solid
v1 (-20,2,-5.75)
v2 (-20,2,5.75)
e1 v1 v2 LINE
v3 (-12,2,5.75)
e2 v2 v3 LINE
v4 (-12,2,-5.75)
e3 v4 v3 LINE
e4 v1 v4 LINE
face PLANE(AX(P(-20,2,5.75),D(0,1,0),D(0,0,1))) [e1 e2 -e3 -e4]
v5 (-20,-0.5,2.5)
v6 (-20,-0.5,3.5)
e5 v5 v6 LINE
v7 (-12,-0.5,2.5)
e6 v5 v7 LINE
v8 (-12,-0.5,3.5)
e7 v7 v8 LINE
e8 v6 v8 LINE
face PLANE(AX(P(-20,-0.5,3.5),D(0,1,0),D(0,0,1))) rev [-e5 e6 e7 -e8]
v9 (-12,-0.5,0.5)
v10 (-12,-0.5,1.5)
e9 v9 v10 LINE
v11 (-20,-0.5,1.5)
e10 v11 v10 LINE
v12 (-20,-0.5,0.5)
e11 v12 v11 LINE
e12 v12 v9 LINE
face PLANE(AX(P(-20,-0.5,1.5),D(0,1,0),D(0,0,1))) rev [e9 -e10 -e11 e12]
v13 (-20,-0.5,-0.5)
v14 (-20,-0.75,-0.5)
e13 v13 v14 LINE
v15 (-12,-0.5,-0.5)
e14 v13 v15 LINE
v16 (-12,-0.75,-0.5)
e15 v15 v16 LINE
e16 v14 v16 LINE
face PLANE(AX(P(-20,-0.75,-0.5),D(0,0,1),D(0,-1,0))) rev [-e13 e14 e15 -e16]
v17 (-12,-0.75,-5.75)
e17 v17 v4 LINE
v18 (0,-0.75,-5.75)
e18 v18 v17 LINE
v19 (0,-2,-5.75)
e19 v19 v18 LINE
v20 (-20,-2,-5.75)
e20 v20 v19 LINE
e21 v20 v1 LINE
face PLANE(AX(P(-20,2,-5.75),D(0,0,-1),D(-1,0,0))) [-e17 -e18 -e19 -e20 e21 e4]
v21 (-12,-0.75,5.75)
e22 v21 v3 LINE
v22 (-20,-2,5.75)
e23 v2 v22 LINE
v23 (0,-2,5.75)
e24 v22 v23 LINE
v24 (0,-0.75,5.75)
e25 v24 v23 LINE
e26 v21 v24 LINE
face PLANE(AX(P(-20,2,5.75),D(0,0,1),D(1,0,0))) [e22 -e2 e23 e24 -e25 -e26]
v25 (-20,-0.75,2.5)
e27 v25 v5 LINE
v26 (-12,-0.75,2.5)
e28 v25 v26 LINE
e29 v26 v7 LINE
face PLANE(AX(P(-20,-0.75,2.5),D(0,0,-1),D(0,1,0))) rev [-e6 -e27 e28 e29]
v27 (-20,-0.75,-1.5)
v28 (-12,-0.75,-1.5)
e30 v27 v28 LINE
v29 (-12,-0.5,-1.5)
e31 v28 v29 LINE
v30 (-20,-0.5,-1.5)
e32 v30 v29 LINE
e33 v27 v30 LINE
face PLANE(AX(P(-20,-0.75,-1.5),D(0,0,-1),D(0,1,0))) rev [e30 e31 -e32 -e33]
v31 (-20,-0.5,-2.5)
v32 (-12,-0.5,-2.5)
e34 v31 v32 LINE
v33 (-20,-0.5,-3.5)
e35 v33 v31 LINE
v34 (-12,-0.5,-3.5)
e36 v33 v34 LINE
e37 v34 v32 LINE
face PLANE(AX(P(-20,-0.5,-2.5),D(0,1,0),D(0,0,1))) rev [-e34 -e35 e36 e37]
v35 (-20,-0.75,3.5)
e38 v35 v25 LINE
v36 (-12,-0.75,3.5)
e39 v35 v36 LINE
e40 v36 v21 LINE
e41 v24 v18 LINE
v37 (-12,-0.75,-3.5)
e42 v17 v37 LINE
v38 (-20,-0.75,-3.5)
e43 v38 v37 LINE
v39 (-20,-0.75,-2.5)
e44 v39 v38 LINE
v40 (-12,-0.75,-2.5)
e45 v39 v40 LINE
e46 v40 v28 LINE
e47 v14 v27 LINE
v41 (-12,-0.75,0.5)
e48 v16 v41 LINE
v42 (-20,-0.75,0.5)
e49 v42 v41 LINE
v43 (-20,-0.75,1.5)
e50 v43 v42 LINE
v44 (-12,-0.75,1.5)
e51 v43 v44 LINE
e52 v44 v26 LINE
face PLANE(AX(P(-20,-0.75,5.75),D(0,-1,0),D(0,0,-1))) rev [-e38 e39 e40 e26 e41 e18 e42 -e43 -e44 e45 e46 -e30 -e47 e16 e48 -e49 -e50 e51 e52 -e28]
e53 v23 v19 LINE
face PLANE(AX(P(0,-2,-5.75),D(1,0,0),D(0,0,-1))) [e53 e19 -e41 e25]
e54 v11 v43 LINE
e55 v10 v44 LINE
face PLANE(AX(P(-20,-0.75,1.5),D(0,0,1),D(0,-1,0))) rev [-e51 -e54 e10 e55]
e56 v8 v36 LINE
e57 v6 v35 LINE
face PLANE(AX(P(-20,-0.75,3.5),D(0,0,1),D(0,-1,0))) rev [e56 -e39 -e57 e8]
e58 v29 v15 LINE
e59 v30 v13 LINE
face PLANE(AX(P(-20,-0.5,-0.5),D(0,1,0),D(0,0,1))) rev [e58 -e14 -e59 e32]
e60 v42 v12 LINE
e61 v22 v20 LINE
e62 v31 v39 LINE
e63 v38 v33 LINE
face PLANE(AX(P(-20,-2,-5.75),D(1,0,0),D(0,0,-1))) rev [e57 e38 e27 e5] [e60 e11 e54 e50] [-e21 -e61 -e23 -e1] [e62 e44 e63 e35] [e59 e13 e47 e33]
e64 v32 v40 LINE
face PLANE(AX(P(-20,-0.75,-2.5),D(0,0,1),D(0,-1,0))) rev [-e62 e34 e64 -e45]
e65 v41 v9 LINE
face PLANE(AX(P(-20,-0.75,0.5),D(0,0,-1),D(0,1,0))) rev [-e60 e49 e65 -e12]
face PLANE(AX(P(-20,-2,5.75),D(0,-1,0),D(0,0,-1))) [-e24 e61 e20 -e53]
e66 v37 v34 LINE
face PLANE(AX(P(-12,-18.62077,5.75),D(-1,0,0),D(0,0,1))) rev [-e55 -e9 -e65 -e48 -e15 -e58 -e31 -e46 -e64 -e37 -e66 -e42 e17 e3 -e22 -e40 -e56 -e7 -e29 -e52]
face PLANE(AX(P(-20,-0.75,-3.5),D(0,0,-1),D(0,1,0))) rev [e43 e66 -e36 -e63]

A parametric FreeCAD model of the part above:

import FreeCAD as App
import Part
import Sketcher
from FreeCAD import Vector
Q = App.Units.Quantity


def add_polygon(sketch, points):
    """Adds a closed chain of lines whose ends are joined by coincident constraints."""
    first, n = sketch.GeometryCount, len(points)
    for a, b in zip(points, points[1:] + points[:1]):
        sketch.addGeometry(Part.LineSegment(App.Vector(*a, 0), App.Vector(*b, 0)), False)
    for i in range(n):
        sketch.addConstraint(Sketcher.Constraint("Coincident", first + i, 2, first + (i + 1) % n, 1))

doc = App.newDocument("Part")
params = doc.addObject("Spreadsheet::Sheet", "Params")
for row, (alias, value) in enumerate([
    ("sketch1_width", "4 mm"),
    ("sketch1_height", "11.5 mm"),
    ("pad1_length", "20 mm"),
    ("sketch2_width", "12 mm"),
    ("sketch2_height", "11.5 mm"),
    ("pocket1_length", "2.75 mm"),
    ("sketch3_height", "1 mm"),
    ("sketch3_width", "0.25 mm"),
    ("linearpattern_pitch", "2 mm"),
], start=1):
    params.set(f"A{row}", alias)
    params.set(f"B{row}", "=" + value)
    params.setAlias(f"B{row}", alias)

body = doc.addObject("PartDesign::Body", "Body")

sketch1 = body.newObject("Sketcher::SketchObject", "Sketch")
sketch1.AttachmentSupport = (doc.getObject("YZ_Plane"), [""])
sketch1.MapMode = "FlatFace"
add_polygon(sketch1, [(2, 5.8), (-2, 5.8), (-2, -5.8), (2, -5.8)])
sketch1.addConstraint([
    Sketcher.Constraint("Horizontal", 0),
    Sketcher.Constraint("Vertical", 1),
    Sketcher.Constraint("Horizontal", 2),
    Sketcher.Constraint("Vertical", 3),
    Sketcher.Constraint("Symmetric", 0, 2, 2, 2, -1, 1),
    Sketcher.Constraint("DistanceX", 0, 2, 0, 1, Q("4 mm")),
    Sketcher.Constraint("DistanceY", 1, 2, 1, 1, Q("11.5 mm")),
])
sketch1.setExpression("Constraints[9]", "Params.sketch1_width")
sketch1.setExpression("Constraints[10]", "Params.sketch1_height")
pad1 = body.newObject("PartDesign::Pad", "Pad")
pad1.Profile = sketch1
pad1.setExpression("Length", "Params.pad1_length")
pad1.Reversed = True

sketch2 = body.newObject("Sketcher::SketchObject", "Sketch001")
sketch2.AttachmentSupport = (doc.getObject("XZ_Plane"), [""])
sketch2.MapMode = "FlatFace"
sketch2.AttachmentOffset = App.Placement(Vector(0, 0, -2), App.Rotation())
add_polygon(sketch2, [(-12, -6), (-12, 6), (0, 6), (0, -6)])
sketch2.addConstraint([
    Sketcher.Constraint("Vertical", 0),
    Sketcher.Constraint("Horizontal", 1),
    Sketcher.Constraint("Vertical", 2),
    Sketcher.Constraint("Horizontal", 3),
    Sketcher.Constraint("Symmetric", 1, 2, 2, 2, -1, 1),
    Sketcher.Constraint("DistanceX", 1, 1, 1, 2, Q("12 mm")),
    Sketcher.Constraint("DistanceY", 0, 1, 0, 2, Q("11.5 mm")),
])
sketch2.setExpression("Constraints[9]", "Params.sketch2_width")
sketch2.setExpression("Constraints[10]", "Params.sketch2_height")
pocket1 = body.newObject("PartDesign::Pocket", "Pocket")
pocket1.Profile = sketch2
pocket1.setExpression("Length", "Params.pocket1_length")
pocket1.Reversed = True

sketch3 = body.newObject("Sketcher::SketchObject", "Sketch002")
sketch3.AttachmentSupport = (doc.getObject("YZ_Plane"), [""])
sketch3.MapMode = "FlatFace"
sketch3.AttachmentOffset = App.Placement(Vector(0, 0, -12), App.Rotation())
add_polygon(sketch3, [(-0.5, 3.5), (-0.75, 3.5), (-0.75, 2.5), (-0.5, 2.5)])
sketch3.addConstraint([
    Sketcher.Constraint("Horizontal", 0),
    Sketcher.Constraint("Vertical", 1),
    Sketcher.Constraint("Horizontal", 2),
    Sketcher.Constraint("Vertical", 3),
    Sketcher.Constraint("DistanceY", 1, 2, 1, 1, Q("1 mm")),
    Sketcher.Constraint("DistanceX", 0, 2, 0, 1, Q("0.25 mm")),
    Sketcher.Constraint("DistanceY", -1, 1, 0, 2, Q("3.5 mm")),
    Sketcher.Constraint("DistanceX", 2, 2, -1, 1, Q("0.5 mm")),
])
sketch3.setExpression("Constraints[8]", "Params.sketch3_height")
sketch3.setExpression("Constraints[9]", "Params.sketch3_width")
pocket2 = body.newObject("PartDesign::Pocket", "Pocket001")
pocket2.Profile = sketch3
pocket2.Type = "ThroughAll"
doc.recompute()

linearpattern = body.newObject("PartDesign::LinearPattern", "LinearPattern")
linearpattern.Originals = [pocket2]
linearpattern.Direction = (doc.getObject("Z_Axis"), [""])
linearpattern.Mode = "offset"
linearpattern.setExpression("Offset", "Params.linearpattern_pitch")
linearpattern.Occurrences = 4
linearpattern.Reversed = True
body.Tip = linearpattern

doc.recompute()
